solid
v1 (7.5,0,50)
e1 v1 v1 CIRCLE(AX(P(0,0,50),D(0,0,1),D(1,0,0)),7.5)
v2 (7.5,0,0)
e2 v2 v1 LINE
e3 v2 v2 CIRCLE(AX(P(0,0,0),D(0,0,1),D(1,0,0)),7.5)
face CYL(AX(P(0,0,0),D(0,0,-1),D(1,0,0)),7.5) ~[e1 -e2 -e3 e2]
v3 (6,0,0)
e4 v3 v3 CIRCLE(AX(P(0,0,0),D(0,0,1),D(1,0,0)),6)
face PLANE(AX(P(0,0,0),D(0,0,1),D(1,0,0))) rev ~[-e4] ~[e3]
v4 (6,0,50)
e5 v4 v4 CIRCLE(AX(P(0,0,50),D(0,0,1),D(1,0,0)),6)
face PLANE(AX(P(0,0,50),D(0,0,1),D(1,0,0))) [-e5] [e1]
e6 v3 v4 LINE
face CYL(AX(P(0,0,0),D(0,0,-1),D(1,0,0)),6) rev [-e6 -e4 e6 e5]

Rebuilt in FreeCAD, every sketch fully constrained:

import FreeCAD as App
import Part
import Sketcher

V = App.Vector

doc = App.newDocument("Part")
body = doc.addObject("PartDesign::Body", "Body")

# Sketch on XY plane
sketch1 = body.newObject("Sketcher::SketchObject", "Sketch")
sketch1.AttachmentSupport = (doc.getObject("XY_Plane"), [""])
sketch1.MapMode = "FlatFace"
sketch1.addGeometry(Part.Circle(V(0, 0, 0), V(0, 0, 1), 8), False)
sketch1.addGeometry(Part.Circle(V(0, 0, 0), V(0, 0, 1), 6), False)
sketch1.addConstraint(Sketcher.Constraint("Coincident", 0, 3, -1, 1))
sketch1.addConstraint(Sketcher.Constraint("Coincident", 1, 3, -1, 1))
sketch1.addConstraint(Sketcher.Constraint("Diameter", 1, 12.0))
sketch1.addConstraint(Sketcher.Constraint("Diameter", 0, 15.0))
pad1 = body.newObject("PartDesign::Pad", "Pad")
pad1.Profile = sketch1
pad1.Length = 50

doc.recompute()
